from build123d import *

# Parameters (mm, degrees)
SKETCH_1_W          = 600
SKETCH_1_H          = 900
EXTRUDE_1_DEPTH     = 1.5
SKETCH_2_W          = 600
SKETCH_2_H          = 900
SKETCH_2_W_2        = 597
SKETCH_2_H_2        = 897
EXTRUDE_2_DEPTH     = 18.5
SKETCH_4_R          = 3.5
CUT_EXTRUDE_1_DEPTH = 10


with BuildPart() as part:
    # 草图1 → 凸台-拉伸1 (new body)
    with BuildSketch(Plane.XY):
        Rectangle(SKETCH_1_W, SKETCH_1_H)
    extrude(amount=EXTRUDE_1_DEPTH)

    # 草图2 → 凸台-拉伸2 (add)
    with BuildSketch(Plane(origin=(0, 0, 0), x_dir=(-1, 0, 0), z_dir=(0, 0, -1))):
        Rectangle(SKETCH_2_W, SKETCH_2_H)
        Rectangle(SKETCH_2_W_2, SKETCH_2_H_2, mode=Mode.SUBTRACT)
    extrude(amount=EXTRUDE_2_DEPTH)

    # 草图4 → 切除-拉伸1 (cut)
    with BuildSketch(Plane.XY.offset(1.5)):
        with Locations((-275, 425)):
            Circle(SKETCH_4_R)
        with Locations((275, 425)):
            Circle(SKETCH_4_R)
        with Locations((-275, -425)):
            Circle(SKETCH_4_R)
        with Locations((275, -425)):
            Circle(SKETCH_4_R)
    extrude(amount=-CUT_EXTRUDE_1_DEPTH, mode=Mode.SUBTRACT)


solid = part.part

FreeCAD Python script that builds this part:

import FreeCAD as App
import Part
import Sketcher
from FreeCAD import Vector
Q = App.Units.Quantity

doc = App.newDocument("Part")
body = doc.addObject("PartDesign::Body", "Body")

sketch1 = doc.addObject("Sketcher::SketchObject", "Sketch")
body.addObject(sketch1)
sketch1.AttachmentSupport = (doc.XY_Plane, [""])
sketch1.MapMode = "FlatFace"
sketch1.addGeometry([
    Part.LineSegment(Vector(-300, 450, 0), Vector(-300, -450, 0)),
    Part.LineSegment(Vector(-300, -450, 0), Vector(300, -450, 0)),
    Part.LineSegment(Vector(300, -450, 0), Vector(300, 450, 0)),
    Part.LineSegment(Vector(300, 450, 0), Vector(-300, 450, 0)),
], False)
sketch1.addConstraint([
    Sketcher.Constraint("Coincident", 0, 2, 1, 1),
    Sketcher.Constraint("Coincident", 1, 2, 2, 1),
    Sketcher.Constraint("Coincident", 2, 2, 3, 1),
    Sketcher.Constraint("Coincident", 3, 2, 0, 1),
    Sketcher.Constraint("Vertical", 0),
    Sketcher.Constraint("Horizontal", 1),
    Sketcher.Constraint("Vertical", 2),
    Sketcher.Constraint("Horizontal", 3),
    Sketcher.Constraint("Symmetric", 0, 2, 2, 2, -1, 1),
    Sketcher.Constraint("DistanceX", 1, 1, 1, 2, Q("600 mm")),
    Sketcher.Constraint("DistanceY", 0, 2, 0, 1, Q("900 mm")),
])
pad1 = doc.addObject("PartDesign::Pad", "Pad")
body.addObject(pad1)
pad1.Profile = sketch1
pad1.Length = 1.5

sketch2 = doc.addObject("Sketcher::SketchObject", "Sketch001")
body.addObject(sketch2)
sketch2.AttachmentSupport = (doc.XY_Plane, [""])
sketch2.MapMode = "FlatFace"
sketch2.addGeometry([
    Part.LineSegment(Vector(300, 450, 0), Vector(300, -450, 0)),
    Part.LineSegment(Vector(300, -450, 0), Vector(-300, -450, 0)),
    Part.LineSegment(Vector(-300, -450, 0), Vector(-300, 450, 0)),
    Part.LineSegment(Vector(-300, 450, 0), Vector(300, 450, 0)),
    Part.LineSegment(Vector(-298, -448, 0), Vector(298, -448, 0)),
    Part.LineSegment(Vector(298, -448, 0), Vector(298, 448, 0)),
    Part.LineSegment(Vector(298, 448, 0), Vector(-298, 448, 0)),
    Part.LineSegment(Vector(-298, 448, 0), Vector(-298, -448, 0)),
], False)
sketch2.addConstraint([
    Sketcher.Constraint("Coincident", 0, 2, 1, 1),
    Sketcher.Constraint("Coincident", 1, 2, 2, 1),
    Sketcher.Constraint("Coincident", 2, 2, 3, 1),
    Sketcher.Constraint("Coincident", 3, 2, 0, 1),
    Sketcher.Constraint("Coincident", 4, 2, 5, 1),
    Sketcher.Constraint("Coincident", 5, 2, 6, 1),
    Sketcher.Constraint("Coincident", 6, 2, 7, 1),
    Sketcher.Constraint("Coincident", 7, 2, 4, 1),
    Sketcher.Constraint("Vertical", 0),
    Sketcher.Constraint("Horizontal", 1),
    Sketcher.Constraint("Vertical", 2),
    Sketcher.Constraint("Horizontal", 3),
    Sketcher.Constraint("Horizontal", 4),
    Sketcher.Constraint("Vertical", 5),
    Sketcher.Constraint("Horizontal", 6),
    Sketcher.Constraint("Vertical", 7),
    Sketcher.Constraint("Symmetric", 0, 2, 2, 2, -1, 1),
    Sketcher.Constraint("Symmetric", 4, 2, 6, 2, -1, 1),
    Sketcher.Constraint("DistanceX", 1, 2, 1, 1, Q("600 mm")),
    Sketcher.Constraint("DistanceX", 4, 1, 4, 2, Q("597 mm")),
    Sketcher.Constraint("DistanceY", 0, 2, 0, 1, Q("900 mm")),
    Sketcher.Constraint("DistanceY", 5, 1, 5, 2, Q("897 mm")),
])
pad2 = doc.addObject("PartDesign::Pad", "Pad001")
body.addObject(pad2)
pad2.Profile = sketch2
pad2.Length = 18.5
pad2.Reversed = True

sketch3 = doc.addObject("Sketcher::SketchObject", "Sketch002")
body.addObject(sketch3)
sketch3.AttachmentSupport = (doc.XY_Plane, [""])
sketch3.MapMode = "FlatFace"
sketch3.AttachmentOffset = App.Placement(Vector(0, 0, 1.5), App.Rotation())
sketch3.addGeometry([
    Part.Circle(Vector(-275, 425, 0), Vector(0, 0, 1), 3.5),
    Part.Circle(Vector(275, 425, 0), Vector(0, 0, 1), 3.5),
    Part.Circle(Vector(-275, -425, 0), Vector(0, 0, 1), 3.5),
    Part.Circle(Vector(275, -425, 0), Vector(0, 0, 1), 3.5),
], False)
sketch3.addConstraint([
    Sketcher.Constraint("Equal", 0, 1),
    Sketcher.Constraint("Equal", 1, 2),
    Sketcher.Constraint("Equal", 2, 3),
    Sketcher.Constraint("Symmetric", 1, 3, 2, 3, -1, 1),
    Sketcher.Constraint("Symmetric", 0, 3, 3, 3, -1, 1),
    Sketcher.Constraint("Symmetric", 0, 3, 1, 3, -2),
    Sketcher.Constraint("Diameter", 0, Q("7 mm")),
    Sketcher.Constraint("DistanceX", 0, 3, -1, 1, Q("275 mm")),
    Sketcher.Constraint("DistanceY", -1, 1, 0, 3, Q("425 mm")),
])
pocket1 = doc.addObject("PartDesign::Pocket", "Pocket")
body.addObject(pocket1)
pocket1.Profile = sketch3
pocket1.Length = 10

doc.recompute()
